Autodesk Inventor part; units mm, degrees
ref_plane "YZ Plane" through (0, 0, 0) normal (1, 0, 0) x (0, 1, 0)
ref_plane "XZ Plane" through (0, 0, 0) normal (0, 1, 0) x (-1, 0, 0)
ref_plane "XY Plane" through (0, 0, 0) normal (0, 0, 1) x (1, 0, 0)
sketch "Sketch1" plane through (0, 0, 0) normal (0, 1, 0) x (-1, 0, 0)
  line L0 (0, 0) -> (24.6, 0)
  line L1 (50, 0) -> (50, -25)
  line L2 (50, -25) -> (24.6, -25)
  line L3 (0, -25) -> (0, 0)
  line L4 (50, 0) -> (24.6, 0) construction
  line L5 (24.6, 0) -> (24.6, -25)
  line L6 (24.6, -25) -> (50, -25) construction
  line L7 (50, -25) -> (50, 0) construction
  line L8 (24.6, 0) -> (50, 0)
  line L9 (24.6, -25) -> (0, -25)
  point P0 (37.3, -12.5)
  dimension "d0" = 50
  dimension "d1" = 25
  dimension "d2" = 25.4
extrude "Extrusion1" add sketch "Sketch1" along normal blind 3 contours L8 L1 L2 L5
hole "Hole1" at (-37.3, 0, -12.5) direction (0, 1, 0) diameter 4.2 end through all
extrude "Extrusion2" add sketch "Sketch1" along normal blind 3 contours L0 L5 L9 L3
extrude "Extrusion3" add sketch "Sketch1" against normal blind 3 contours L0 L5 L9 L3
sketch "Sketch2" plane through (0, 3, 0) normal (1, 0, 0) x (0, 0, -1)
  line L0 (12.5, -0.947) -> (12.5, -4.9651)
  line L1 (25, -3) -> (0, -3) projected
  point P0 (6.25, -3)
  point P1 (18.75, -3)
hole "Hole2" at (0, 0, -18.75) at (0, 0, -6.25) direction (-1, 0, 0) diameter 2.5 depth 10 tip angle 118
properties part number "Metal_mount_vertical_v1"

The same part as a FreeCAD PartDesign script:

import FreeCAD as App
import Part
import Sketcher
from FreeCAD import Vector
Q = App.Units.Quantity

doc = App.newDocument("Part")
params = doc.addObject("Spreadsheet::Sheet", "Params")
for row, (alias, value) in enumerate([
    ("sketch1_height", "25 mm"),
    ("sketch1_width", "25.4 mm"),
    ("pad1_length", "3 mm"),
    ("sketch2_diameter", "4.2 mm"),
    ("hole_diameter", "4.2 mm"),
    ("sketch3_height", "25 mm"),
    ("sketch3_width", "24.6 mm"),
    ("pad2_length", "3 mm"),
    ("sketch4_height", "25 mm"),
    ("sketch4_width", "24.6 mm"),
    ("pad3_length", "3 mm"),
    ("sketch5_diameter", "2.5 mm"),
    ("hole2_diameter", "2.5 mm"),
    ("hole2_depth", "10 mm"),
], start=1):
    params.set(f"A{row}", alias)
    params.set(f"B{row}", "=" + value)
    params.setAlias(f"B{row}", alias)

body = doc.addObject("PartDesign::Body", "Body")

sketch1 = body.newObject("Sketcher::SketchObject", "Sketch")
sketch1.AttachmentSupport = (doc.getObject("XZ_Plane"), [""])
sketch1.MapMode = "FlatFace"
sketch1.addGeometry(Part.LineSegment(Vector(-50, 0, 0), Vector(-25, 0, 0)), False)
sketch1.addGeometry(Part.LineSegment(Vector(-25, 0, 0), Vector(-25, -25, 0)), False)
sketch1.addGeometry(Part.LineSegment(Vector(-25, -25, 0), Vector(-50, -25, 0)), False)
sketch1.addGeometry(Part.LineSegment(Vector(-50, -25, 0), Vector(-50, 0, 0)), False)
sketch1.addConstraint(Sketcher.Constraint("Coincident", 0, 2, 1, 1))
sketch1.addConstraint(Sketcher.Constraint("Coincident", 1, 2, 2, 1))
sketch1.addConstraint(Sketcher.Constraint("Coincident", 2, 2, 3, 1))
sketch1.addConstraint(Sketcher.Constraint("Coincident", 3, 2, 0, 1))
sketch1.addConstraint(Sketcher.Constraint("Horizontal", 0))
sketch1.addConstraint(Sketcher.Constraint("Vertical", 1))
sketch1.addConstraint(Sketcher.Constraint("Horizontal", 2))
sketch1.addConstraint(Sketcher.Constraint("Vertical", 3))
sketch1.addConstraint(Sketcher.Constraint("PointOnObject", 0, 2, -1))
sketch1.addConstraint(Sketcher.Constraint("DistanceY", 1, 2, 1, 1, Q("25 mm")))
sketch1.addConstraint(Sketcher.Constraint("DistanceX", 0, 1, 0, 2, Q("25.4 mm")))
sketch1.addConstraint(Sketcher.Constraint("DistanceX", 2, 2, -1, 1, Q("50 mm")))
sketch1.setExpression("Constraints[9]", "Params.sketch1_height")
sketch1.setExpression("Constraints[10]", "Params.sketch1_width")
pad1 = body.newObject("PartDesign::Pad", "Pad")
pad1.Profile = sketch1
pad1.setExpression("Length", "Params.pad1_length")
pad1.Reversed = True

sketch2 = body.newObject("Sketcher::SketchObject", "Sketch001")
sketch2.AttachmentSupport = (doc.getObject("XZ_Plane"), [""])
sketch2.MapMode = "FlatFace"
sketch2.addGeometry(Part.Circle(Vector(-37.3, -12.5, 0), Vector(0, 0, 1), 2.1), False)
sketch2.addConstraint(Sketcher.Constraint("Diameter", 0, Q("4.2 mm")))
sketch2.addConstraint(Sketcher.Constraint("DistanceX", 0, 3, -1, 1, Q("37.3 mm")))
sketch2.addConstraint(Sketcher.Constraint("DistanceY", 0, 3, -1, 1, Q("12.5 mm")))
sketch2.setExpression("Constraints[0]", "Params.sketch2_diameter")
doc.recompute()
hole = body.newObject("PartDesign::Hole", "Hole")
hole.Profile = sketch2
hole.ThreadType = "None"
hole.setExpression("Diameter", "Params.hole_diameter")
hole.DepthType = "ThroughAll"

sketch3 = body.newObject("Sketcher::SketchObject", "Sketch002")
sketch3.AttachmentSupport = (doc.getObject("XZ_Plane"), [""])
sketch3.MapMode = "FlatFace"
sketch3.addGeometry(Part.LineSegment(Vector(-25, 0, 0), Vector(0, 0, 0)), False)
sketch3.addGeometry(Part.LineSegment(Vector(0, 0, 0), Vector(0, -25, 0)), False)
sketch3.addGeometry(Part.LineSegment(Vector(0, -25, 0), Vector(-25, -25, 0)), False)
sketch3.addGeometry(Part.LineSegment(Vector(-25, -25, 0), Vector(-25, 0, 0)), False)
sketch3.addConstraint(Sketcher.Constraint("Coincident", 0, 2, 1, 1))
sketch3.addConstraint(Sketcher.Constraint("Coincident", 1, 2, 2, 1))
sketch3.addConstraint(Sketcher.Constraint("Coincident", 2, 2, 3, 1))
sketch3.addConstraint(Sketcher.Constraint("Coincident", 3, 2, 0, 1))
sketch3.addConstraint(Sketcher.Constraint("Horizontal", 0))
sketch3.addConstraint(Sketcher.Constraint("Vertical", 1))
sketch3.addConstraint(Sketcher.Constraint("Horizontal", 2))
sketch3.addConstraint(Sketcher.Constraint("Vertical", 3))
sketch3.addConstraint(Sketcher.Constraint("Coincident", 0, 2, -1, 1))
sketch3.addConstraint(Sketcher.Constraint("DistanceY", 1, 2, 1, 1, Q("25 mm")))
sketch3.addConstraint(Sketcher.Constraint("DistanceX", 0, 1, 0, 2, Q("24.6 mm")))
sketch3.setExpression("Constraints[9]", "Params.sketch3_height")
sketch3.setExpression("Constraints[10]", "Params.sketch3_width")
pad2 = body.newObject("PartDesign::Pad", "Pad001")
pad2.Profile = sketch3
pad2.setExpression("Length", "Params.pad2_length")
pad2.Reversed = True

sketch4 = body.newObject("Sketcher::SketchObject", "Sketch003")
sketch4.AttachmentSupport = (doc.getObject("XZ_Plane"), [""])
sketch4.MapMode = "FlatFace"
sketch4.addGeometry(Part.LineSegment(Vector(-25, 0, 0), Vector(0, 0, 0)), False)
sketch4.addGeometry(Part.LineSegment(Vector(0, 0, 0), Vector(0, -25, 0)), False)
sketch4.addGeometry(Part.LineSegment(Vector(0, -25, 0), Vector(-25, -25, 0)), False)
sketch4.addGeometry(Part.LineSegment(Vector(-25, -25, 0), Vector(-25, 0, 0)), False)
sketch4.addConstraint(Sketcher.Constraint("Coincident", 0, 2, 1, 1))
sketch4.addConstraint(Sketcher.Constraint("Coincident", 1, 2, 2, 1))
sketch4.addConstraint(Sketcher.Constraint("Coincident", 2, 2, 3, 1))
sketch4.addConstraint(Sketcher.Constraint("Coincident", 3, 2, 0, 1))
sketch4.addConstraint(Sketcher.Constraint("Horizontal", 0))
sketch4.addConstraint(Sketcher.Constraint("Vertical", 1))
sketch4.addConstraint(Sketcher.Constraint("Horizontal", 2))
sketch4.addConstraint(Sketcher.Constraint("Vertical", 3))
sketch4.addConstraint(Sketcher.Constraint("Coincident", 0, 2, -1, 1))
sketch4.addConstraint(Sketcher.Constraint("DistanceY", 1, 2, 1, 1, Q("25 mm")))
sketch4.addConstraint(Sketcher.Constraint("DistanceX", 0, 1, 0, 2, Q("24.6 mm")))
sketch4.setExpression("Constraints[9]", "Params.sketch4_height")
sketch4.setExpression("Constraints[10]", "Params.sketch4_width")
pad3 = body.newObject("PartDesign::Pad", "Pad002")
pad3.Profile = sketch4
pad3.setExpression("Length", "Params.pad3_length")

sketch5 = body.newObject("Sketcher::SketchObject", "Sketch004")
sketch5.AttachmentSupport = (doc.getObject("YZ_Plane"), [""])
sketch5.MapMode = "FlatFace"
sketch5.addGeometry(Part.Circle(Vector(0, -18.8, 0), Vector(0, 0, 1), 1.2), False)
sketch5.addGeometry(Part.Circle(Vector(0, -6.2, 0), Vector(0, 0, 1), 1.2), False)
sketch5.addConstraint(Sketcher.Constraint("Equal", 0, 1))
sketch5.addConstraint(Sketcher.Constraint("PointOnObject", 0, 3, -2))
sketch5.addConstraint(Sketcher.Constraint("PointOnObject", 1, 3, -2))
sketch5.addConstraint(Sketcher.Constraint("Diameter", 0, Q("2.5 mm")))
sketch5.addConstraint(Sketcher.Constraint("DistanceY", 0, 3, 1, 3, Q("12.5 mm")))
sketch5.addConstraint(Sketcher.Constraint("DistanceY", 0, 3, -1, 1, Q("18.75 mm")))
sketch5.setExpression("Constraints[3]", "Params.sketch5_diameter")
doc.recompute()
hole2 = body.newObject("PartDesign::Hole", "Hole001")
hole2.Profile = sketch5
hole2.ThreadType = "None"
hole2.setExpression("Diameter", "Params.hole2_diameter")
hole2.DepthType = "Dimension"
hole2.setExpression("Depth", "Params.hole2_depth")
hole2.DrillPoint = "Angled"
hole2.DrillPointAngle = 118

doc.recompute()
